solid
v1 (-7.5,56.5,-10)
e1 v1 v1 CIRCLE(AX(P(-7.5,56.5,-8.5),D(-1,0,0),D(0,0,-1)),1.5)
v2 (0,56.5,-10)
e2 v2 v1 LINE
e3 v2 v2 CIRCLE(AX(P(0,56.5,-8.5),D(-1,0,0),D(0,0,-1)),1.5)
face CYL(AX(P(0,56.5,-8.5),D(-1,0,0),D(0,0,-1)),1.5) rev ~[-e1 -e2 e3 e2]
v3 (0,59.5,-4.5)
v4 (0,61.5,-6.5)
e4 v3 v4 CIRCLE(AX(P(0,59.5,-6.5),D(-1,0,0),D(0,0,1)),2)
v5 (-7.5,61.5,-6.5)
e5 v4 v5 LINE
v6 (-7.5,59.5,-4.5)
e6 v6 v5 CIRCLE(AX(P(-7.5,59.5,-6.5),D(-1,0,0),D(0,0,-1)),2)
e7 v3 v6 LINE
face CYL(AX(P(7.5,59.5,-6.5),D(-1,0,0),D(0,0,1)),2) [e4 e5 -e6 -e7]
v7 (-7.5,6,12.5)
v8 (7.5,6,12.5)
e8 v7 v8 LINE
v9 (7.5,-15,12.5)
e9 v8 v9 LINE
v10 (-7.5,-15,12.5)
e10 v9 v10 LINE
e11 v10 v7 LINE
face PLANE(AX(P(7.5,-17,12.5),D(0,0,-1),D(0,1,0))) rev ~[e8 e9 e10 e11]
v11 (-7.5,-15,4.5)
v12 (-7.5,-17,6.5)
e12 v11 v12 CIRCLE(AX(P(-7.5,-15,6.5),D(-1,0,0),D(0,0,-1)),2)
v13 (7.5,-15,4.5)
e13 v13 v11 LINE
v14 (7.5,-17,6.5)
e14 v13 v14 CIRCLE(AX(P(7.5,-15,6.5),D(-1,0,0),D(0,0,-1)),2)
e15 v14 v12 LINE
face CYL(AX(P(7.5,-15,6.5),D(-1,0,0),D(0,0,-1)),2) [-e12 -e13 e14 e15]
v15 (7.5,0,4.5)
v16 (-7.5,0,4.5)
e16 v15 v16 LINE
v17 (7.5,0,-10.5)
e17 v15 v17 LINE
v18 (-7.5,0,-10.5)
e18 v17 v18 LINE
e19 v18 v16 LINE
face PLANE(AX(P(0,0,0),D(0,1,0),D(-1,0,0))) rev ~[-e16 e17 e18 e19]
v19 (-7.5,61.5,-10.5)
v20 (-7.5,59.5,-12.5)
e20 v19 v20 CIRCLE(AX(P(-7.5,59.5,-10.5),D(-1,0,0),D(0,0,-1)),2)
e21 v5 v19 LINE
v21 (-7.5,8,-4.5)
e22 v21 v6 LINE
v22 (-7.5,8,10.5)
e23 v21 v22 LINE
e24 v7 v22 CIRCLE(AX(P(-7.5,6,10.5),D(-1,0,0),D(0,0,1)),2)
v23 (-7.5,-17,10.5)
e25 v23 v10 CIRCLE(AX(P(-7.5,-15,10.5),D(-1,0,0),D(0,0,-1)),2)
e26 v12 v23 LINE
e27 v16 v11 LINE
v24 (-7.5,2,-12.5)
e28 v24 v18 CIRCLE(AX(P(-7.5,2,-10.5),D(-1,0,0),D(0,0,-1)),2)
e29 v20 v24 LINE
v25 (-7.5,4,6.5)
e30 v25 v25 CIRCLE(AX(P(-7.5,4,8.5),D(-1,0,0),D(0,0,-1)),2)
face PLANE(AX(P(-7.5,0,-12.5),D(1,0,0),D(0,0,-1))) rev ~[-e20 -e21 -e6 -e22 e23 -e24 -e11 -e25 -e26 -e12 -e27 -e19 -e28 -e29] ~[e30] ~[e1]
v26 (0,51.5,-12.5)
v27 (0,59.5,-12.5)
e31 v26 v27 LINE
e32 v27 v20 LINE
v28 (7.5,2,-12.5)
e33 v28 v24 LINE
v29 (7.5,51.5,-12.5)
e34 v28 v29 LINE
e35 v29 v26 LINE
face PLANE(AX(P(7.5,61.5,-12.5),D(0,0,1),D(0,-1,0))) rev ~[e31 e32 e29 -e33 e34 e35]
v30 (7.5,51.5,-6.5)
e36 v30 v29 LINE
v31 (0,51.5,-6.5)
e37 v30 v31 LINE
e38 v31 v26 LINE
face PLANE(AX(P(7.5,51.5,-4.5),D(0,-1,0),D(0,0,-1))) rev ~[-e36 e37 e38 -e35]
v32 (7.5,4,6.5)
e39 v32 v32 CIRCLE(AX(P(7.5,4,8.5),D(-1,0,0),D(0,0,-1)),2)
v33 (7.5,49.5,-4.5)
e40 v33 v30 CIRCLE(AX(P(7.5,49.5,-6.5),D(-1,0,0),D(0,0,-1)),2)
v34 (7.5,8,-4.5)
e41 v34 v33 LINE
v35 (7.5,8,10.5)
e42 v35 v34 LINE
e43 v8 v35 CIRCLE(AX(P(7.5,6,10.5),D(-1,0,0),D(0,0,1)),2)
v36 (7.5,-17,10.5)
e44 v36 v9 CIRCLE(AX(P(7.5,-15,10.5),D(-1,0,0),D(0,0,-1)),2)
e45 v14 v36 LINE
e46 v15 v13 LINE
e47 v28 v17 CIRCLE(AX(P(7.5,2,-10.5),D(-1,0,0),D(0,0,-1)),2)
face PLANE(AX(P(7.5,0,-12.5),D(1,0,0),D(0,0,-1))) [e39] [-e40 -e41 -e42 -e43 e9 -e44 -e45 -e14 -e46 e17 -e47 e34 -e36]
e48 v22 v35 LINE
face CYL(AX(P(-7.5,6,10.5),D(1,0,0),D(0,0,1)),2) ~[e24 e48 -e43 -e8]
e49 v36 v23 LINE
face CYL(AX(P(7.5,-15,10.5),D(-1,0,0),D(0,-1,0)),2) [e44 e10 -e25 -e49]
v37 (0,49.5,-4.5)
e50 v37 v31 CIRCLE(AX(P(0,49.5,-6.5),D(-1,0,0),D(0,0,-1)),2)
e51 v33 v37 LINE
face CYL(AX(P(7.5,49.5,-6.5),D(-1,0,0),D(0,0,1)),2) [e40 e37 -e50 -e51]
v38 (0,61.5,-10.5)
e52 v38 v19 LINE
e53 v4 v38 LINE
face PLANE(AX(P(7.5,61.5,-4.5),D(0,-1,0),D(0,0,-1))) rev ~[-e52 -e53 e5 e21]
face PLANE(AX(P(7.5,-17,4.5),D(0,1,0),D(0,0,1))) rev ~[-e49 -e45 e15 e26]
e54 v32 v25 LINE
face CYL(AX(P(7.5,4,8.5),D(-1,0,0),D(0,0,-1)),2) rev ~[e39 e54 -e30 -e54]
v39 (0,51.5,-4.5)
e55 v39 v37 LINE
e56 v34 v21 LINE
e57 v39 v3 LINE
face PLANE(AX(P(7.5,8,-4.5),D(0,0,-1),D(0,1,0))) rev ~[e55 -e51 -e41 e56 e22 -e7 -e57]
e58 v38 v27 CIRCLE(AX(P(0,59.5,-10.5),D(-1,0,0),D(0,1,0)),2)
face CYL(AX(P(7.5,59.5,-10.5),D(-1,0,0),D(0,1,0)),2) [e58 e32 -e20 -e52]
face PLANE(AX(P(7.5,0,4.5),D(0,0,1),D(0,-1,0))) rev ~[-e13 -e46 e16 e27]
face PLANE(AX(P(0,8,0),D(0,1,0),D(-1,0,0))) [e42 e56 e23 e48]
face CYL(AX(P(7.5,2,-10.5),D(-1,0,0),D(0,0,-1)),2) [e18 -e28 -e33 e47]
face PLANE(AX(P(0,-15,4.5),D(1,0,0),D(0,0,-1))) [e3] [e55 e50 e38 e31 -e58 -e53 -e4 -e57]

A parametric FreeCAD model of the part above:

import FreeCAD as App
import Part
import Sketcher
Q = App.Units.Quantity


def edges_at(feature, points):
    """Names of the edges that pass closest to the given points."""
    edges = feature.Shape.Edges
    near = lambda p: min(range(len(edges)), key=lambda i: edges[i].distToShape(Part.Vertex(*p))[0])
    return sorted({f"Edge{near(p) + 1}" for p in points})


def add_polygon(sketch, points):
    """Adds a closed chain of lines whose ends are joined by coincident constraints."""
    first, n = sketch.GeometryCount, len(points)
    for a, b in zip(points, points[1:] + points[:1]):
        sketch.addGeometry(Part.LineSegment(App.Vector(*a, 0), App.Vector(*b, 0)), False)
    for i in range(n):
        sketch.addConstraint(Sketcher.Constraint("Coincident", first + i, 2, first + (i + 1) % n, 1))

doc = App.newDocument("Part")
body = doc.addObject("PartDesign::Body", "Body")

sketch1 = body.newObject("Sketcher::SketchObject", "Sketch")
sketch1.AttachmentSupport = (doc.getObject("XZ_Plane"), [""])
sketch1.MapMode = "FlatFace"
add_polygon(sketch1, [(8, 12), (8, -12), (-8, -12), (-8, 12)])
sketch1.addConstraint([
    Sketcher.Constraint("Vertical", 0),
    Sketcher.Constraint("Horizontal", 1),
    Sketcher.Constraint("Vertical", 2),
    Sketcher.Constraint("Horizontal", 3),
    Sketcher.Constraint("Symmetric", 0, 2, 2, 2, -1, 1),
    Sketcher.Constraint("DistanceX", 1, 2, 1, 1, Q("15 mm")),
    Sketcher.Constraint("DistanceY", 0, 2, 0, 1, Q("25 mm")),
])
pad1 = body.newObject("PartDesign::Pad", "Pad")
pad1.Profile = sketch1
pad1.Length = 8
pad1.Reversed = True

sketch2 = body.newObject("Sketcher::SketchObject", "Sketch001")
sketch2.AttachmentSupport = (doc.getObject("YZ_Plane"), [""])
sketch2.MapMode = "FlatFace"
sketch2.AttachmentOffset = App.Placement(App.Vector(0, 0, 7.5), App.Rotation())
sketch2.addGeometry(Part.Circle(App.Vector(4, 8.5, 0), App.Vector(0, 0, 1), 2), False)
sketch2.addConstraint([
    Sketcher.Constraint("Diameter", 0, Q("4 mm")),
    Sketcher.Constraint("DistanceX", -1, 1, 0, 3, Q("4 mm")),
    Sketcher.Constraint("DistanceY", -1, 1, 0, 3, Q("8.5 mm")),
])
doc.recompute()
hole = body.newObject("PartDesign::Hole", "Hole")
hole.Profile = sketch2
hole.ThreadType = "None"
hole.Diameter = 4
hole.DepthType = "ThroughAll"

sketch3 = body.newObject("Sketcher::SketchObject", "Sketch002")
sketch3.AttachmentSupport = (doc.getObject("YZ_Plane"), [""])
sketch3.MapMode = "FlatFace"
sketch3.AttachmentOffset = App.Placement(App.Vector(0, 0, 7.5), App.Rotation())
add_polygon(sketch3, [(-17, 4), (0, 4), (0, 12), (-17, 12)])
sketch3.addConstraint([
    Sketcher.Constraint("Horizontal", 0),
    Sketcher.Constraint("Vertical", 1),
    Sketcher.Constraint("Horizontal", 2),
    Sketcher.Constraint("Vertical", 3),
    Sketcher.Constraint("PointOnObject", 0, 2, -2),
    Sketcher.Constraint("DistanceX", 0, 1, 0, 2, Q("17 mm")),
    Sketcher.Constraint("DistanceY", 1, 1, 1, 2, Q("8 mm")),
    Sketcher.Constraint("DistanceY", -1, 1, 0, 2, Q("4.5 mm")),
])
pad2 = body.newObject("PartDesign::Pad", "Pad001")
pad2.Profile = sketch3
pad2.Length = 15
pad2.Reversed = True
doc.recompute()

fillet = body.newObject("PartDesign::Fillet", "Fillet")
fillet.Base = (pad2, edges_at(pad2, [(0, -17, 12.5), (0, -17, 4.5), (0, 8, 12.5)]))
fillet.Radius = 2

sketch4 = body.newObject("Sketcher::SketchObject", "Sketch003")
sketch4.AttachmentSupport = (doc.getObject("YZ_Plane"), [""])
sketch4.MapMode = "FlatFace"
sketch4.AttachmentOffset = App.Placement(App.Vector(0, 0, 7.5), App.Rotation())
add_polygon(sketch4, [(8, -4), (8, -12), (62, -12), (62, -4)])
sketch4.addConstraint([
    Sketcher.Constraint("Vertical", 0),
    Sketcher.Constraint("Horizontal", 1),
    Sketcher.Constraint("Vertical", 2),
    Sketcher.Constraint("Horizontal", 3),
    Sketcher.Constraint("DistanceY", 0, 2, 0, 1, Q("8 mm")),
    Sketcher.Constraint("DistanceX", 1, 1, 1, 2, Q("53.5 mm")),
    Sketcher.Constraint("DistanceX", -1, 1, 0, 2, Q("8 mm")),
    Sketcher.Constraint("DistanceY", 0, 2, -1, 1, Q("12.5 mm")),
])
pad3 = body.newObject("PartDesign::Pad", "Pad002")
pad3.Profile = sketch4
pad3.Length = 15
pad3.Reversed = True
doc.recompute()

fillet2 = body.newObject("PartDesign::Fillet", "Fillet001")
fillet2.Base = (pad3, edges_at(pad3, [(0, 0, -12.5), (0, 61.5, -4.5), (0, 61.5, -12.5)]))
fillet2.Radius = 2

sketch5 = body.newObject("Sketcher::SketchObject", "Sketch004")
sketch5.AttachmentSupport = (doc.getObject("YZ_Plane"), [""])
sketch5.MapMode = "FlatFace"
sketch5.AttachmentOffset = App.Placement(App.Vector(0, 0, 7.5), App.Rotation())
add_polygon(sketch5, [(62, -4), (52, -4), (52, -12), (62, -12)])
sketch5.addConstraint([
    Sketcher.Constraint("Horizontal", 0),
    Sketcher.Constraint("Vertical", 1),
    Sketcher.Constraint("Horizontal", 2),
    Sketcher.Constraint("Vertical", 3),
    Sketcher.Constraint("DistanceX", 0, 2, 0, 1, Q("10 mm")),
    Sketcher.Constraint("DistanceY", 1, 2, 1, 1, Q("8 mm")),
    Sketcher.Constraint("DistanceX", -1, 1, 0, 2, Q("51.5 mm")),
    Sketcher.Constraint("DistanceY", 0, 2, -1, 1, Q("4.5 mm")),
])
pocket1 = body.newObject("PartDesign::Pocket", "Pocket")
pocket1.Profile = sketch5
pocket1.Length = 7.5

sketch6 = body.newObject("Sketcher::SketchObject", "Sketch005")
sketch6.AttachmentSupport = (doc.getObject("YZ_Plane"), [""])
sketch6.MapMode = "FlatFace"
sketch6.addGeometry(Part.Circle(App.Vector(56.5, -8.5, 0), App.Vector(0, 0, 1), 1.5), False)
sketch6.addConstraint([
    Sketcher.Constraint("Diameter", 0, Q("3 mm")),
    Sketcher.Constraint("DistanceX", -1, 1, 0, 3, Q("56.5 mm")),
    Sketcher.Constraint("DistanceY", 0, 3, -1, 1, Q("8.5 mm")),
])
doc.recompute()
hole2 = body.newObject("PartDesign::Hole", "Hole001")
hole2.Profile = sketch6
hole2.ThreadType = "None"
hole2.Diameter = 3
hole2.DepthType = "ThroughAll"
doc.recompute()

fillet3 = body.newObject("PartDesign::Fillet", "Fillet002")
fillet3.Base = (hole2, edges_at(hole2, [(3.75, 51.5, -4.5)]))
fillet3.Radius = 2

doc.recompute()
